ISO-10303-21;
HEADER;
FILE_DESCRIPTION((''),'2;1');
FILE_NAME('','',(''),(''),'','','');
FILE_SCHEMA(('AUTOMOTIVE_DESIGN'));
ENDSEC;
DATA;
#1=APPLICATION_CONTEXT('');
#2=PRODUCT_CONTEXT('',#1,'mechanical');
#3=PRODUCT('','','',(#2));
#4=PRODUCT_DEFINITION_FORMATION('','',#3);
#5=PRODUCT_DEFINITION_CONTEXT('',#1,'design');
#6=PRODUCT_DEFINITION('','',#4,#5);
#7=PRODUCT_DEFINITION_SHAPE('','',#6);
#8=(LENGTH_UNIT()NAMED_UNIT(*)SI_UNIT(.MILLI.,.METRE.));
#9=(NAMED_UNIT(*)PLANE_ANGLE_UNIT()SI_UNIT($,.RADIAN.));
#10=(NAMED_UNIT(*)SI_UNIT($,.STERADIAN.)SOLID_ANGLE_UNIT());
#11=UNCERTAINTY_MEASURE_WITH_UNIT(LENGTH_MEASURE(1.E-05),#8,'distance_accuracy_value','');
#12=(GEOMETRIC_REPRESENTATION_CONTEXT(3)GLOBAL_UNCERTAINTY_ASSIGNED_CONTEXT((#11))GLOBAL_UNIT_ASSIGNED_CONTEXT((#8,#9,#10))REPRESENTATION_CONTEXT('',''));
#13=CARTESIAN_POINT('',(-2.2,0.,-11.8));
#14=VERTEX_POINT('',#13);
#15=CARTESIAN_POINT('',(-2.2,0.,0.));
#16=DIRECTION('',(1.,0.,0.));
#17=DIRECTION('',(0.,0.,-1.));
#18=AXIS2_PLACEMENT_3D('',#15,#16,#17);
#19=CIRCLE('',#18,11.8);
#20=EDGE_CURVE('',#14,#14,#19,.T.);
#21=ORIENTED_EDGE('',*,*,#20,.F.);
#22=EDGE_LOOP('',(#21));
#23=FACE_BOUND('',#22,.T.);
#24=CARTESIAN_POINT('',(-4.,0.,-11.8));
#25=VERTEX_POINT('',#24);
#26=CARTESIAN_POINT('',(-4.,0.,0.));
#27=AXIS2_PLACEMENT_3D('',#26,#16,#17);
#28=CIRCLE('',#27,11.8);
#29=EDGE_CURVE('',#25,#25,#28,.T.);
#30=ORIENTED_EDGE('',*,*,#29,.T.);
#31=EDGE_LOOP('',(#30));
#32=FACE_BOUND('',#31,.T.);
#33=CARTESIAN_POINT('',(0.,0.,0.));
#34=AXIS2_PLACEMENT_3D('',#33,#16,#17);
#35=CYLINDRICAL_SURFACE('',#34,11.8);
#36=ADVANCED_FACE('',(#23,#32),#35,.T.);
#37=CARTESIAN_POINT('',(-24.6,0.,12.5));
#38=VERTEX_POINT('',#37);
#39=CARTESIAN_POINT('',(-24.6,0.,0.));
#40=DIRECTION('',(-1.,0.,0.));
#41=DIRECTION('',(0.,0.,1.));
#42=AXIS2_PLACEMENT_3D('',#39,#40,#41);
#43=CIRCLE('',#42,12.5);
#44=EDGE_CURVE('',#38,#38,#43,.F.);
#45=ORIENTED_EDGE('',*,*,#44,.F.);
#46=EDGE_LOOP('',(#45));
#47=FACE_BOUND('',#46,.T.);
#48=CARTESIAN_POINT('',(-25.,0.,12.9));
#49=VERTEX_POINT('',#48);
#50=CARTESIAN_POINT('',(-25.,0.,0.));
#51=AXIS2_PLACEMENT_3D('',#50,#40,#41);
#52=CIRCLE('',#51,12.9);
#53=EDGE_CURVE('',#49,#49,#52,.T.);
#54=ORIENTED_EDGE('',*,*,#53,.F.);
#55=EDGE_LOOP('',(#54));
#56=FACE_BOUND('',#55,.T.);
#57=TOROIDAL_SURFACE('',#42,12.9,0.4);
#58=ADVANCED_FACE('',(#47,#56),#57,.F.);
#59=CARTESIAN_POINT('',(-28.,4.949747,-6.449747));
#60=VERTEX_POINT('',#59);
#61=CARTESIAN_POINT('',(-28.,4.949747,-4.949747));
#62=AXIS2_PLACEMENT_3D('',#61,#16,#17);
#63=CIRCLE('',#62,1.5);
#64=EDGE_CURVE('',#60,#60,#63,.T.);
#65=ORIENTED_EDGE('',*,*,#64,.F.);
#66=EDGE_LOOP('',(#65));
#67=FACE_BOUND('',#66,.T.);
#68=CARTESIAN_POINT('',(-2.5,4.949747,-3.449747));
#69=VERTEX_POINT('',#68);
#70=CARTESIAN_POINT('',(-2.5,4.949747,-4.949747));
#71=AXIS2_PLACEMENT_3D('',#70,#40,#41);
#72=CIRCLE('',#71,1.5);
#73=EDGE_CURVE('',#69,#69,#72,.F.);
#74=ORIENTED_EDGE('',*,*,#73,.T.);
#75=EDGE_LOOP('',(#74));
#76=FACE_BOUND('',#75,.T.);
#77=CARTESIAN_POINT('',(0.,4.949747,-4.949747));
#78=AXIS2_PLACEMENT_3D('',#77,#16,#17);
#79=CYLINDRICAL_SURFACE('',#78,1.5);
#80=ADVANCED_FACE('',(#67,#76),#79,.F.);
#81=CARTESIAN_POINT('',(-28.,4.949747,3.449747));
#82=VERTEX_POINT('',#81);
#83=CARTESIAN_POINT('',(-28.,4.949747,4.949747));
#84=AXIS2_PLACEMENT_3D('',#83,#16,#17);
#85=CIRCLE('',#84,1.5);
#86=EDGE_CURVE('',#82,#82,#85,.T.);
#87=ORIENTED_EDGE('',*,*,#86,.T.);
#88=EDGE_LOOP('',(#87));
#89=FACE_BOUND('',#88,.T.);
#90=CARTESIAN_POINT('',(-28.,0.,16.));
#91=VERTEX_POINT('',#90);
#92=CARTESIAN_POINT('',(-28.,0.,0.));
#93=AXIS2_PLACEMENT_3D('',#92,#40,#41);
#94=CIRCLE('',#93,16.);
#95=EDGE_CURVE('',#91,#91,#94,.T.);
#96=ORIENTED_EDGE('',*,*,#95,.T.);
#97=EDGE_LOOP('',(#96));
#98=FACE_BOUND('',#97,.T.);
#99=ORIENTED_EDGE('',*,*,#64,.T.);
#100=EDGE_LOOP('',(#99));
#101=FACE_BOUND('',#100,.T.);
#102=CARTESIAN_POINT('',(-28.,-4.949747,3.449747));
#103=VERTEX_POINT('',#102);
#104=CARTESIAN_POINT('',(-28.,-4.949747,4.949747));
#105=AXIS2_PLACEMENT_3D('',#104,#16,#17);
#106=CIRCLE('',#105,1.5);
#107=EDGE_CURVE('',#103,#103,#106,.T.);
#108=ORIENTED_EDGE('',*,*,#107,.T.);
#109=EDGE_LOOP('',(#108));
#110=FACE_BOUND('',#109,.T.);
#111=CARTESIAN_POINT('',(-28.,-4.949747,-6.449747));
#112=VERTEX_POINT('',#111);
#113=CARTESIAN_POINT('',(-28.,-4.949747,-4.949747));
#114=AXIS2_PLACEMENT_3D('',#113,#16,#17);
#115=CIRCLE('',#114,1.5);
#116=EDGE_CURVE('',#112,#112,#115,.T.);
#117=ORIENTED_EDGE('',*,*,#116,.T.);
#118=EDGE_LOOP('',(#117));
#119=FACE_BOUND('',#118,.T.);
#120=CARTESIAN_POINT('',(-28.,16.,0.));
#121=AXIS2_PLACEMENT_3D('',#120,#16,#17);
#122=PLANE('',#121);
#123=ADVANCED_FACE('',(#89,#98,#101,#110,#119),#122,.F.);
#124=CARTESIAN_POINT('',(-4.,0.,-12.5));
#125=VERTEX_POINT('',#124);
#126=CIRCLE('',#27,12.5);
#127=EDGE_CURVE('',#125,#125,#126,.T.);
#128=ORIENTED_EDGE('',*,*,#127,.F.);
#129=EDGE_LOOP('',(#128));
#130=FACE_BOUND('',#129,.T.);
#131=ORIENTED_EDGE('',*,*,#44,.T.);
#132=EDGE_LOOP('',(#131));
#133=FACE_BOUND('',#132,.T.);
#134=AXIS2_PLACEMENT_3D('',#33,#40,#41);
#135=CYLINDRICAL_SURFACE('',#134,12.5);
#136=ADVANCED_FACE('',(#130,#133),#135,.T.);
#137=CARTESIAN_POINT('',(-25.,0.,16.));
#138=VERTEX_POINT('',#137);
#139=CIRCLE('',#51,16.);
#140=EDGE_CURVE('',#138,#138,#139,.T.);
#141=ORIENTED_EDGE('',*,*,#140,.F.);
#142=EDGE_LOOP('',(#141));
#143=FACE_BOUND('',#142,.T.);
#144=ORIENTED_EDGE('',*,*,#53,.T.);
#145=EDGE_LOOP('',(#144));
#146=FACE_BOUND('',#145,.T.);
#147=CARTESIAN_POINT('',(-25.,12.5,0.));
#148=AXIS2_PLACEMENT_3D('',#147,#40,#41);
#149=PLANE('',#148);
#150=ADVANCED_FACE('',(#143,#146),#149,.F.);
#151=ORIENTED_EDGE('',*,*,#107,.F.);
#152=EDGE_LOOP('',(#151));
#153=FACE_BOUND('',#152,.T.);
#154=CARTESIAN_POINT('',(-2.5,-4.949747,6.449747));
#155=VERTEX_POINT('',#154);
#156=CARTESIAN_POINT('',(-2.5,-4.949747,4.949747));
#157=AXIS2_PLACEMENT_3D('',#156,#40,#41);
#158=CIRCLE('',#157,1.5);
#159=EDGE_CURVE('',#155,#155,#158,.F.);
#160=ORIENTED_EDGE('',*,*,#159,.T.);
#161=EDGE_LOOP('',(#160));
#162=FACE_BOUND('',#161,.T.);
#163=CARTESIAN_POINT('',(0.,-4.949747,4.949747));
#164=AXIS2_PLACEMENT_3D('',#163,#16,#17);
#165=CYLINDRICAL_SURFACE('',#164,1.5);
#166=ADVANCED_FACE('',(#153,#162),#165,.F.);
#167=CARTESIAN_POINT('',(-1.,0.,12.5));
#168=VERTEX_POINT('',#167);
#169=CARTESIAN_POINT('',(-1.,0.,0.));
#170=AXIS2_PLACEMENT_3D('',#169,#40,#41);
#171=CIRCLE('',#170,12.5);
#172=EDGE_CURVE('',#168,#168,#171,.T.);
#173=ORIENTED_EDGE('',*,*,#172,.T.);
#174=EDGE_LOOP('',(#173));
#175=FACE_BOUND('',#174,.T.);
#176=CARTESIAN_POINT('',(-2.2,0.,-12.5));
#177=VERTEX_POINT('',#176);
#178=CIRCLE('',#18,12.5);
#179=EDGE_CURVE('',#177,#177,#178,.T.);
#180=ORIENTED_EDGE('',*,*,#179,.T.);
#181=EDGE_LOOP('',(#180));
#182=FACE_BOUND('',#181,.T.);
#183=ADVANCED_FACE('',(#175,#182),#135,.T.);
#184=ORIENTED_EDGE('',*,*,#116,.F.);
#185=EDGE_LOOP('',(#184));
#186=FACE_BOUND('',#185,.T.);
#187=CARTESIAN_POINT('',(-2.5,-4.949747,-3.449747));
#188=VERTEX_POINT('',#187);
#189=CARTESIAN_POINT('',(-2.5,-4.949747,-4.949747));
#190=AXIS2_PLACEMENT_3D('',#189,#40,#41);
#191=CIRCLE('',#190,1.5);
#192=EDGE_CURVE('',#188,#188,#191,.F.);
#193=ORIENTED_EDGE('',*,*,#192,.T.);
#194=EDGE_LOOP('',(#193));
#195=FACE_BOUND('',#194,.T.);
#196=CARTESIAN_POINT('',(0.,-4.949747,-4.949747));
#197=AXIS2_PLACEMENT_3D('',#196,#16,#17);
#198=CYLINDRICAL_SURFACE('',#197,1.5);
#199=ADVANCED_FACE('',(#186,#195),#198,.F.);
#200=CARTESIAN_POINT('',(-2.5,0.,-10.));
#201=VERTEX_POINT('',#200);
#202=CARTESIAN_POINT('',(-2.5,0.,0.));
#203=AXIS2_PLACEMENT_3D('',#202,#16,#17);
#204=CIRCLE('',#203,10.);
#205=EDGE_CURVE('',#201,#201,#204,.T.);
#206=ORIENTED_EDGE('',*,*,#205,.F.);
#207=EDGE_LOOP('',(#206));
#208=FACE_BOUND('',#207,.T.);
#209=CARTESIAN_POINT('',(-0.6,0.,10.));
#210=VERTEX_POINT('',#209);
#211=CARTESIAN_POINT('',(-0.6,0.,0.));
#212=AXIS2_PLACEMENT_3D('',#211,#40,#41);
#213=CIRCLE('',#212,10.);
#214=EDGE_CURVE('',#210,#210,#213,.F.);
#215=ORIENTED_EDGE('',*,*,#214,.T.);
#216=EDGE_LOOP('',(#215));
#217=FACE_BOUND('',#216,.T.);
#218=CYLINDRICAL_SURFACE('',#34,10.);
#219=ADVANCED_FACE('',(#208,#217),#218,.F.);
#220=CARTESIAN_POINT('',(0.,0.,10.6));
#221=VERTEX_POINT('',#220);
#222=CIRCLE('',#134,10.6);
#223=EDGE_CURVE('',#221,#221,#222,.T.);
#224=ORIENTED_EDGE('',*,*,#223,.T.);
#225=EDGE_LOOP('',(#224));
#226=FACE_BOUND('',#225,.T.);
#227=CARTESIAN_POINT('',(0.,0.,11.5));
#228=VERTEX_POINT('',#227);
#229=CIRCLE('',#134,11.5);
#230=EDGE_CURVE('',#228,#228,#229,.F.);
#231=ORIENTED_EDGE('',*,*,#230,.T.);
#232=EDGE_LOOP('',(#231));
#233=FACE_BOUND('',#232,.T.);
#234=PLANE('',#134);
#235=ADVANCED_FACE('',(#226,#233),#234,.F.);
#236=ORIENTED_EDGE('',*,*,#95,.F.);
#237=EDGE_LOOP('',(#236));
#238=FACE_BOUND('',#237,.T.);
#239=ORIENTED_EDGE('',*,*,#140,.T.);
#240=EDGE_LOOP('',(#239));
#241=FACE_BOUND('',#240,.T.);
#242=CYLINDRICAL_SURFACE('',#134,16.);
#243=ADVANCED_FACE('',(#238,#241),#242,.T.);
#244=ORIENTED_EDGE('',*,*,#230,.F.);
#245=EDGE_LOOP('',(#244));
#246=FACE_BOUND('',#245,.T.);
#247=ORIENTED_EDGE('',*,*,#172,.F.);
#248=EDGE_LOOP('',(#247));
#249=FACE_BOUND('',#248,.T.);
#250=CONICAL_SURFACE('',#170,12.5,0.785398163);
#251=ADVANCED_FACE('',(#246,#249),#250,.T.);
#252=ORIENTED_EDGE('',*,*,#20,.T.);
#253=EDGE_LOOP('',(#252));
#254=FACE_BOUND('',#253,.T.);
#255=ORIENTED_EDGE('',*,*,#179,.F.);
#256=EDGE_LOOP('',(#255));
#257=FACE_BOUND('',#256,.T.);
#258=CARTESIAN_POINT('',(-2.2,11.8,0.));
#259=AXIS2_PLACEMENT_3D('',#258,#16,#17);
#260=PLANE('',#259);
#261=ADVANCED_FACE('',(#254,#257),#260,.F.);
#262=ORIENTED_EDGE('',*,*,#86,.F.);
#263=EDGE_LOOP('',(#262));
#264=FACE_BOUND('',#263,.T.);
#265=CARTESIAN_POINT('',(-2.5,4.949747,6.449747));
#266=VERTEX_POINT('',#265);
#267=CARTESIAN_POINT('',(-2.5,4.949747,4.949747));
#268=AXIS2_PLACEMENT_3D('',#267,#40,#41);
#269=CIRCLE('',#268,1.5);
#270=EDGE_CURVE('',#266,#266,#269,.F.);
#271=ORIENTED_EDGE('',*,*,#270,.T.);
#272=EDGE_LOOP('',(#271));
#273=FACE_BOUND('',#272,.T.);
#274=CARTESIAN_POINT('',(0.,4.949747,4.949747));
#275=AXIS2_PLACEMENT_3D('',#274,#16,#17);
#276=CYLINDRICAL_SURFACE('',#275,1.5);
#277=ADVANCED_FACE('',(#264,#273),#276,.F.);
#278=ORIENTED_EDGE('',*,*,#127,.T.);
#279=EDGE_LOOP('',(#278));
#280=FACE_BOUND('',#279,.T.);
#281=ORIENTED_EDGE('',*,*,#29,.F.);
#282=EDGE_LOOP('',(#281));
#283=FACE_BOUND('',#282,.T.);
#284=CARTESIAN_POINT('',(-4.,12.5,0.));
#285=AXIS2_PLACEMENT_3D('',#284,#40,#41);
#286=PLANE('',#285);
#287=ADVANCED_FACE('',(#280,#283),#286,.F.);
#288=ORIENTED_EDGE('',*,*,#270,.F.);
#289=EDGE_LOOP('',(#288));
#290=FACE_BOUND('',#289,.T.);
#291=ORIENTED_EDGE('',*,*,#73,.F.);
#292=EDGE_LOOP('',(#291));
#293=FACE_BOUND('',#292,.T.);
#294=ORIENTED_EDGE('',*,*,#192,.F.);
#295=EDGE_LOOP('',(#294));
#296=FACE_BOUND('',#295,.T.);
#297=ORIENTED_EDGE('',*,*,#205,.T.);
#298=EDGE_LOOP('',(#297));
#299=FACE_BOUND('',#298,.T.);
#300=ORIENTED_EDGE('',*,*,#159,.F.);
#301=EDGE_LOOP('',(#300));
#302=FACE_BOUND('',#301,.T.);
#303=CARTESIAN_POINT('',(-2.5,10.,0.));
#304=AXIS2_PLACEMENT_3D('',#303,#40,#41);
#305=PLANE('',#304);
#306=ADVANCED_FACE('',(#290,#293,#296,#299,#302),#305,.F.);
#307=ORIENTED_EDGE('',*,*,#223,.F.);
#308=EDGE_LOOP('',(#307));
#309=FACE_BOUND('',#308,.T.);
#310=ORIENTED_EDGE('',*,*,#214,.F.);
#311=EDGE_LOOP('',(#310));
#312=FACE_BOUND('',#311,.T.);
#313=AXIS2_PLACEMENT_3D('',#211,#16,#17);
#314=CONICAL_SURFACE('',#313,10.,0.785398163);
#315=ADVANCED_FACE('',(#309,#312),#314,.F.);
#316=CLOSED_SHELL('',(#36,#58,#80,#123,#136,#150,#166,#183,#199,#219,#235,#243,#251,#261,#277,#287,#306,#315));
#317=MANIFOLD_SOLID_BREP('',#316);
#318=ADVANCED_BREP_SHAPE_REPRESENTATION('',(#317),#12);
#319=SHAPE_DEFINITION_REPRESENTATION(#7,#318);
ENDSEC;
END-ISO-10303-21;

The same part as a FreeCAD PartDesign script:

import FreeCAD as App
import Part
import Sketcher
from FreeCAD import Vector
Q = App.Units.Quantity


def edges_at(feature, points):
    """Names of the edges that pass closest to the given points."""
    edges = feature.Shape.Edges
    near = lambda p: min(range(len(edges)), key=lambda i: edges[i].distToShape(Part.Vertex(*p))[0])
    return sorted({f"Edge{near(p) + 1}" for p in points})

doc = App.newDocument("Part")
params = doc.addObject("Spreadsheet::Sheet", "Params")
for row, (alias, value) in enumerate([
    ("sketch1_width", "25 mm"),
    ("sketch1_width2", "3 mm"),
    ("sketch1_height", "16 mm"),
    ("sketch1_height2", "12.5 mm"),
    ("revolution_angle", "360 deg"),
    ("sketch2_width", "1.8 mm"),
    ("sketch2_height", "0.7 mm"),
    ("groove_angle", "360 deg"),
    ("chamfer_size", "1 mm"),
    ("fillet_radius", "0.4 mm"),
    ("sketch3_diameter", "3 mm"),
    ("hole_diameter", "3 mm"),
    ("sketch4_height", "10 mm"),
    ("sketch4_width", "2.5 mm"),
    ("groove2_angle", "360 deg"),
    ("chamfer2_size", "0.6 mm"),
], start=1):
    params.set(f"A{row}", alias)
    params.set(f"B{row}", "=" + value)
    params.setAlias(f"B{row}", alias)

body = doc.addObject("PartDesign::Body", "Body")

sketch1 = body.newObject("Sketcher::SketchObject", "Sketch")
sketch1.AttachmentSupport = (doc.getObject("XY_Plane"), [""])
sketch1.MapMode = "FlatFace"
sketch1.addGeometry([
    Part.LineSegment(Vector(0, 0, 0), Vector(0, 12.5, 0)),
    Part.LineSegment(Vector(0, 12.5, 0), Vector(-25, 12.5, 0)),
    Part.LineSegment(Vector(-25, 12.5, 0), Vector(-25, 16, 0)),
    Part.LineSegment(Vector(-25, 16, 0), Vector(-28, 16, 0)),
    Part.LineSegment(Vector(-28, 16, 0), Vector(-28, 0, 0)),
    Part.LineSegment(Vector(-28, 0, 0), Vector(0, 0, 0)),
], False)
sketch1.addConstraint([
    Sketcher.Constraint("Coincident", 0, 2, 1, 1),
    Sketcher.Constraint("Coincident", 1, 2, 2, 1),
    Sketcher.Constraint("Coincident", 2, 2, 3, 1),
    Sketcher.Constraint("Coincident", 3, 2, 4, 1),
    Sketcher.Constraint("Coincident", 4, 2, 5, 1),
    Sketcher.Constraint("Coincident", 5, 2, 0, 1),
    Sketcher.Constraint("Vertical", 0),
    Sketcher.Constraint("Horizontal", 1),
    Sketcher.Constraint("Vertical", 2),
    Sketcher.Constraint("Horizontal", 3),
    Sketcher.Constraint("Vertical", 4),
    Sketcher.Constraint("Horizontal", 5),
    Sketcher.Constraint("Coincident", 5, 2, -1, 1),
    Sketcher.Constraint("DistanceX", 1, 2, 1, 1, Q("25 mm")),
    Sketcher.Constraint("DistanceX", 3, 2, 3, 1, Q("3 mm")),
    Sketcher.Constraint("DistanceY", 4, 2, 4, 1, Q("16 mm")),
    Sketcher.Constraint("DistanceY", 0, 1, 0, 2, Q("12.5 mm")),
])
sketch1.setExpression("Constraints[13]", "Params.sketch1_width")
sketch1.setExpression("Constraints[14]", "Params.sketch1_width2")
sketch1.setExpression("Constraints[15]", "Params.sketch1_height")
sketch1.setExpression("Constraints[16]", "Params.sketch1_height2")
revolution = body.newObject("PartDesign::Revolution", "Revolution")
revolution.Profile = sketch1
revolution.ReferenceAxis = (sketch1, ["H_Axis"])
revolution.setExpression("Angle", "Params.revolution_angle")

sketch2 = body.newObject("Sketcher::SketchObject", "Sketch001")
sketch2.AttachmentSupport = (doc.getObject("XY_Plane"), [""])
sketch2.MapMode = "FlatFace"
sketch2.addGeometry([
    Part.LineSegment(Vector(-4, 12.5, 0), Vector(-4, 11.8, 0)),
    Part.LineSegment(Vector(-4, 11.8, 0), Vector(-2.2, 11.8, 0)),
    Part.LineSegment(Vector(-2.2, 11.8, 0), Vector(-2.2, 12.5, 0)),
    Part.LineSegment(Vector(-2.2, 12.5, 0), Vector(-4, 12.5, 0)),
], False)
sketch2.addConstraint([
    Sketcher.Constraint("Coincident", 0, 2, 1, 1),
    Sketcher.Constraint("Coincident", 1, 2, 2, 1),
    Sketcher.Constraint("Coincident", 2, 2, 3, 1),
    Sketcher.Constraint("Coincident", 3, 2, 0, 1),
    Sketcher.Constraint("Vertical", 0),
    Sketcher.Constraint("Horizontal", 1),
    Sketcher.Constraint("Vertical", 2),
    Sketcher.Constraint("Horizontal", 3),
    Sketcher.Constraint("DistanceX", 1, 1, 1, 2, Q("1.8 mm")),
    Sketcher.Constraint("DistanceY", 0, 2, 0, 1, Q("0.7 mm")),
    Sketcher.Constraint("DistanceX", 0, 2, -1, 1, Q("4 mm")),
    Sketcher.Constraint("DistanceY", -1, 1, 0, 2, Q("11.8 mm")),
])
sketch2.setExpression("Constraints[8]", "Params.sketch2_width")
sketch2.setExpression("Constraints[9]", "Params.sketch2_height")
groove = body.newObject("PartDesign::Groove", "Groove")
groove.Profile = sketch2
groove.ReferenceAxis = (sketch2, ["H_Axis"])
groove.setExpression("Angle", "Params.groove_angle")
doc.recompute()

chamfer = body.newObject("PartDesign::Chamfer", "Chamfer")
chamfer.Base = (groove, edges_at(groove, [(0, 0, -12.5)]))
chamfer.setExpression("Size", "Params.chamfer_size")
doc.recompute()

fillet = body.newObject("PartDesign::Fillet", "Fillet")
fillet.Base = (chamfer, edges_at(chamfer, [(-25, 0, -12.5)]))
fillet.setExpression("Radius", "Params.fillet_radius")

sketch3 = body.newObject("Sketcher::SketchObject", "Sketch002")
sketch3.AttachmentSupport = (doc.getObject("YZ_Plane"), [""])
sketch3.MapMode = "FlatFace"
sketch3.addGeometry(Part.Circle(Vector(4.9, -4.9, 0), Vector(0, 0, 1), 1.5), False)
sketch3.addConstraint([
    Sketcher.Constraint("Diameter", 0, Q("3 mm")),
    Sketcher.Constraint("DistanceX", -1, 1, 0, 3, Q("4.949747 mm")),
    Sketcher.Constraint("DistanceY", 0, 3, -1, 1, Q("4.949747 mm")),
])
sketch3.setExpression("Constraints[0]", "Params.sketch3_diameter")
doc.recompute()
hole = body.newObject("PartDesign::Hole", "Hole")
hole.Profile = sketch3
hole.ThreadType = "None"
hole.setExpression("Diameter", "Params.hole_diameter")
hole.DepthType = "ThroughAll"
doc.recompute()

polarpattern = body.newObject("PartDesign::PolarPattern", "PolarPattern")
polarpattern.Originals = [hole]
polarpattern.Axis = (doc.getObject("X_Axis"), [""])
polarpattern.Angle = 360
polarpattern.Occurrences = 4
body.Tip = polarpattern

sketch4 = body.newObject("Sketcher::SketchObject", "Sketch003")
sketch4.AttachmentSupport = (doc.getObject("XY_Plane"), [""])
sketch4.MapMode = "FlatFace"
sketch4.addGeometry([
    Part.LineSegment(Vector(-2.5, 10, 0), Vector(-2.5, 0, 0)),
    Part.LineSegment(Vector(-2.5, 0, 0), Vector(0, 0, 0)),
    Part.LineSegment(Vector(0, 0, 0), Vector(0, 10, 0)),
    Part.LineSegment(Vector(0, 10, 0), Vector(-2.5, 10, 0)),
], False)
sketch4.addConstraint([
    Sketcher.Constraint("Coincident", 0, 2, 1, 1),
    Sketcher.Constraint("Coincident", 1, 2, 2, 1),
    Sketcher.Constraint("Coincident", 2, 2, 3, 1),
    Sketcher.Constraint("Coincident", 3, 2, 0, 1),
    Sketcher.Constraint("Vertical", 0),
    Sketcher.Constraint("Horizontal", 1),
    Sketcher.Constraint("Vertical", 2),
    Sketcher.Constraint("Horizontal", 3),
    Sketcher.Constraint("Coincident", 1, 2, -1, 1),
    Sketcher.Constraint("DistanceY", 0, 2, 0, 1, Q("10 mm")),
    Sketcher.Constraint("DistanceX", 1, 1, 1, 2, Q("2.5 mm")),
])
sketch4.setExpression("Constraints[9]", "Params.sketch4_height")
sketch4.setExpression("Constraints[10]", "Params.sketch4_width")
groove2 = body.newObject("PartDesign::Groove", "Groove001")
groove2.Profile = sketch4
groove2.ReferenceAxis = (sketch4, ["H_Axis"])
groove2.setExpression("Angle", "Params.groove2_angle")
doc.recompute()

chamfer2 = body.newObject("PartDesign::Chamfer", "Chamfer001")
chamfer2.Base = (groove2, edges_at(groove2, [(0, 0, 10)]))
chamfer2.setExpression("Size", "Params.chamfer2_size")

doc.recompute()
